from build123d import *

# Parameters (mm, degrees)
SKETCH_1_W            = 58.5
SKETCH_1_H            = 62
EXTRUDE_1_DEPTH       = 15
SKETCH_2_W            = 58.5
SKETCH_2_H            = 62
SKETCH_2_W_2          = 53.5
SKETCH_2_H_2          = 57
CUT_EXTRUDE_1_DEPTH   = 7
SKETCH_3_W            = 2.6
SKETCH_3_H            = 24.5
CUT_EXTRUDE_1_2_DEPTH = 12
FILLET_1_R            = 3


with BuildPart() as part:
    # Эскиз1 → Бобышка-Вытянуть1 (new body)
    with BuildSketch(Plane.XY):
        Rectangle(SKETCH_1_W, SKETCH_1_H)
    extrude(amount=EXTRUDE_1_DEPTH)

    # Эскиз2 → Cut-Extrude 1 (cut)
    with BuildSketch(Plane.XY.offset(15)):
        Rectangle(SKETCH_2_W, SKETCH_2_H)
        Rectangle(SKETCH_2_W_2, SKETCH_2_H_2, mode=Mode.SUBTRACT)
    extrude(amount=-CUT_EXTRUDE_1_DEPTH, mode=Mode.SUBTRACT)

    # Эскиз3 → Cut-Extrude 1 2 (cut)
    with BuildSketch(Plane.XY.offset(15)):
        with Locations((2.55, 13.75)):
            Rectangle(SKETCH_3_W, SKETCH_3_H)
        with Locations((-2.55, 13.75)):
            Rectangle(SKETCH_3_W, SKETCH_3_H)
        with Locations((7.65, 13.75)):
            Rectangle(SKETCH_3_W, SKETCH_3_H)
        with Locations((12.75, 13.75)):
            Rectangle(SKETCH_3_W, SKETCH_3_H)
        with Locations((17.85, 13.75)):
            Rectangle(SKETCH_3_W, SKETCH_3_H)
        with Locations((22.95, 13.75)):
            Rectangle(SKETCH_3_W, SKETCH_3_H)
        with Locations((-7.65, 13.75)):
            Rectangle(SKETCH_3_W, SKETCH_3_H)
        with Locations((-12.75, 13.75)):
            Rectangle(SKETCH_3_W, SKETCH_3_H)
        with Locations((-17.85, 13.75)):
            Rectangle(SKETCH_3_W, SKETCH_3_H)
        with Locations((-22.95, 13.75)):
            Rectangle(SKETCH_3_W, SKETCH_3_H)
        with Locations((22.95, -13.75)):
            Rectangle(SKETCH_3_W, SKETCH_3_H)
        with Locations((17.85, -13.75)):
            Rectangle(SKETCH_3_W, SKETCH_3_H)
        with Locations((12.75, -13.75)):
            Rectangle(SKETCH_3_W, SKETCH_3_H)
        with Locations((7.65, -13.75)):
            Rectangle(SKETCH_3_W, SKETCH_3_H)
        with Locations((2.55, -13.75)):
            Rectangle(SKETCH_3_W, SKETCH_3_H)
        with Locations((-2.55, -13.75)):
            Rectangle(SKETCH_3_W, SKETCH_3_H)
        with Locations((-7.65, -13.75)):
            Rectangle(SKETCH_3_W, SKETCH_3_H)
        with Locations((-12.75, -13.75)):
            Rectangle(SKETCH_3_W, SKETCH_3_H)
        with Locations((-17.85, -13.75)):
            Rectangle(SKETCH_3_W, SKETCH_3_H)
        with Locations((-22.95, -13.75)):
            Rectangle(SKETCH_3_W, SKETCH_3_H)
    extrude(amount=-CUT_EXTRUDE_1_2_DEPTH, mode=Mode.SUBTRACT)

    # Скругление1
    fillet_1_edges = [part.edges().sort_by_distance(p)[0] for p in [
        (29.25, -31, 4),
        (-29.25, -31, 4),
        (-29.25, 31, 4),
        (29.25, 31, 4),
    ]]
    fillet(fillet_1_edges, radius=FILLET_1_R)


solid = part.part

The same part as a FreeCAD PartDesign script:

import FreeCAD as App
import Part
import Sketcher

V = App.Vector


def edges_at(feature, points):
    """Names of the edges that pass closest to the given points."""
    edges = feature.Shape.Edges
    near = lambda p: min(range(len(edges)), key=lambda i: edges[i].distToShape(Part.Vertex(*p))[0])
    return sorted({f"Edge{near(p) + 1}" for p in points})

doc = App.newDocument("Part")
params = doc.addObject("Spreadsheet::Sheet", "Params")
for row, (alias, value) in enumerate([
    ("sketch1_height", "62 mm"),
    ("sketch1_width", "58.5 mm"),
    ("pad1_length", "15 mm"),
    ("sketch2_height", "62 mm"),
    ("sketch2_height2", "57 mm"),
    ("sketch2_width", "58.5 mm"),
    ("sketch2_width2", "53.5 mm"),
    ("pocket1_length", "7 mm"),
    ("sketch3_width", "2.6 mm"),
    ("sketch3_height", "24.5 mm"),
    ("pocket2_length", "12 mm"),
    ("fillet_radius", "3 mm"),
], start=1):
    params.set(f"A{row}", alias)
    params.set(f"B{row}", "=" + value)
    params.setAlias(f"B{row}", alias)

body = doc.addObject("PartDesign::Body", "Body")

# Sketch on XY plane
sketch1 = doc.addObject("Sketcher::SketchObject", "Sketch")
body.addObject(sketch1)
sketch1.AttachmentSupport = (doc.XY_Plane, [""])
sketch1.MapMode = "FlatFace"
sketch1.addGeometry(Part.LineSegment(V(-29, 31, 0), V(-29, -31, 0)), False)
sketch1.addGeometry(Part.LineSegment(V(-29, -31, 0), V(29, -31, 0)), False)
sketch1.addGeometry(Part.LineSegment(V(29, -31, 0), V(29, 31, 0)), False)
sketch1.addGeometry(Part.LineSegment(V(29, 31, 0), V(-29, 31, 0)), False)
sketch1.addConstraint(Sketcher.Constraint("Coincident", 0, 2, 1, 1))
sketch1.addConstraint(Sketcher.Constraint("Coincident", 1, 2, 2, 1))
sketch1.addConstraint(Sketcher.Constraint("Coincident", 2, 2, 3, 1))
sketch1.addConstraint(Sketcher.Constraint("Coincident", 3, 2, 0, 1))
sketch1.addConstraint(Sketcher.Constraint("Vertical", 0))
sketch1.addConstraint(Sketcher.Constraint("Horizontal", 1))
sketch1.addConstraint(Sketcher.Constraint("Vertical", 2))
sketch1.addConstraint(Sketcher.Constraint("Horizontal", 3))
sketch1.addConstraint(Sketcher.Constraint("Symmetric", 0, 2, 2, 2, -1, 1))
sketch1.addConstraint(Sketcher.Constraint("DistanceY", 0, 2, 0, 1, 62.0))
sketch1.addConstraint(Sketcher.Constraint("DistanceX", 1, 1, 1, 2, 58.5))
sketch1.setExpression("Constraints[9]", "Params.sketch1_height")
sketch1.setExpression("Constraints[10]", "Params.sketch1_width")
pad1 = doc.addObject("PartDesign::Pad", "Pad")
body.addObject(pad1)
pad1.Profile = sketch1
pad1.setExpression("Length", "Params.pad1_length")

# Sketch on XY plane
sketch2 = doc.addObject("Sketcher::SketchObject", "Sketch001")
body.addObject(sketch2)
sketch2.AttachmentSupport = (doc.XY_Plane, [""])
sketch2.MapMode = "FlatFace"
sketch2.AttachmentOffset = App.Placement(V(0, 0, 15), App.Rotation())
sketch2.addGeometry(Part.LineSegment(V(-29, 31, 0), V(-29, -31, 0)), False)
sketch2.addGeometry(Part.LineSegment(V(-29, -31, 0), V(29, -31, 0)), False)
sketch2.addGeometry(Part.LineSegment(V(29, -31, 0), V(29, 31, 0)), False)
sketch2.addGeometry(Part.LineSegment(V(29, 31, 0), V(-29, 31, 0)), False)
sketch2.addGeometry(Part.LineSegment(V(27, -28, 0), V(-27, -28, 0)), False)
sketch2.addGeometry(Part.LineSegment(V(-27, -28, 0), V(-27, 28, 0)), False)
sketch2.addGeometry(Part.LineSegment(V(-27, 28, 0), V(27, 28, 0)), False)
sketch2.addGeometry(Part.LineSegment(V(27, 28, 0), V(27, -28, 0)), False)
sketch2.addConstraint(Sketcher.Constraint("Coincident", 0, 2, 1, 1))
sketch2.addConstraint(Sketcher.Constraint("Coincident", 1, 2, 2, 1))
sketch2.addConstraint(Sketcher.Constraint("Coincident", 2, 2, 3, 1))
sketch2.addConstraint(Sketcher.Constraint("Coincident", 3, 2, 0, 1))
sketch2.addConstraint(Sketcher.Constraint("Coincident", 4, 2, 5, 1))
sketch2.addConstraint(Sketcher.Constraint("Coincident", 5, 2, 6, 1))
sketch2.addConstraint(Sketcher.Constraint("Coincident", 6, 2, 7, 1))
sketch2.addConstraint(Sketcher.Constraint("Coincident", 7, 2, 4, 1))
sketch2.addConstraint(Sketcher.Constraint("Vertical", 0))
sketch2.addConstraint(Sketcher.Constraint("Horizontal", 1))
sketch2.addConstraint(Sketcher.Constraint("Vertical", 2))
sketch2.addConstraint(Sketcher.Constraint("Horizontal", 3))
sketch2.addConstraint(Sketcher.Constraint("Horizontal", 4))
sketch2.addConstraint(Sketcher.Constraint("Vertical", 5))
sketch2.addConstraint(Sketcher.Constraint("Horizontal", 6))
sketch2.addConstraint(Sketcher.Constraint("Vertical", 7))
sketch2.addConstraint(Sketcher.Constraint("Symmetric", 0, 2, 2, 2, -1, 1))
sketch2.addConstraint(Sketcher.Constraint("Symmetric", 4, 2, 6, 2, -1, 1))
sketch2.addConstraint(Sketcher.Constraint("DistanceY", 0, 2, 0, 1, 62.0))
sketch2.addConstraint(Sketcher.Constraint("DistanceY", 5, 1, 5, 2, 57.0))
sketch2.addConstraint(Sketcher.Constraint("DistanceX", 1, 1, 1, 2, 58.5))
sketch2.addConstraint(Sketcher.Constraint("DistanceX", 4, 2, 4, 1, 53.5))
sketch2.setExpression("Constraints[18]", "Params.sketch2_height")
sketch2.setExpression("Constraints[19]", "Params.sketch2_height2")
sketch2.setExpression("Constraints[20]", "Params.sketch2_width")
sketch2.setExpression("Constraints[21]", "Params.sketch2_width2")
pocket1 = doc.addObject("PartDesign::Pocket", "Pocket")
body.addObject(pocket1)
pocket1.Profile = sketch2
pocket1.setExpression("Length", "Params.pocket1_length")

# Sketch on XY plane
sketch3 = doc.addObject("Sketcher::SketchObject", "Sketch002")
body.addObject(sketch3)
sketch3.AttachmentSupport = (doc.XY_Plane, [""])
sketch3.MapMode = "FlatFace"
sketch3.AttachmentOffset = App.Placement(V(0, 0, 15), App.Rotation())
sketch3.addGeometry(Part.LineSegment(V(1.2, 26, 0), V(1.2, 1.5, 0)), False)
sketch3.addGeometry(Part.LineSegment(V(1.2, 1.5, 0), V(3.9, 1.5, 0)), False)
sketch3.addGeometry(Part.LineSegment(V(3.9, 1.5, 0), V(3.9, 26, 0)), False)
sketch3.addGeometry(Part.LineSegment(V(3.9, 26, 0), V(1.2, 26, 0)), False)
sketch3.addGeometry(Part.LineSegment(V(-3.9, 26, 0), V(-3.9, 1.5, 0)), False)
sketch3.addGeometry(Part.LineSegment(V(-3.9, 1.5, 0), V(-1.2, 1.5, 0)), False)
sketch3.addGeometry(Part.LineSegment(V(-1.2, 1.5, 0), V(-1.2, 26, 0)), False)
sketch3.addGeometry(Part.LineSegment(V(-1.2, 26, 0), V(-3.9, 26, 0)), False)
sketch3.addGeometry(Part.LineSegment(V(6.3, 26, 0), V(6.3, 1.5, 0)), False)
sketch3.addGeometry(Part.LineSegment(V(6.3, 1.5, 0), V(8.9, 1.5, 0)), False)
sketch3.addGeometry(Part.LineSegment(V(8.9, 1.5, 0), V(8.9, 26, 0)), False)
sketch3.addGeometry(Part.LineSegment(V(8.9, 26, 0), V(6.3, 26, 0)), False)
sketch3.addGeometry(Part.LineSegment(V(11.4, 26, 0), V(11.4, 1.5, 0)), False)
sketch3.addGeometry(Part.LineSegment(V(11.4, 1.5, 0), V(14.1, 1.5, 0)), False)
sketch3.addGeometry(Part.LineSegment(V(14.1, 1.5, 0), V(14.1, 26, 0)), False)
sketch3.addGeometry(Part.LineSegment(V(14.1, 26, 0), V(11.4, 26, 0)), False)
sketch3.addGeometry(Part.LineSegment(V(16.6, 26, 0), V(16.6, 1.5, 0)), False)
sketch3.addGeometry(Part.LineSegment(V(16.6, 1.5, 0), V(19.1, 1.5, 0)), False)
sketch3.addGeometry(Part.LineSegment(V(19.1, 1.5, 0), V(19.1, 26, 0)), False)
sketch3.addGeometry(Part.LineSegment(V(19.1, 26, 0), V(16.6, 26, 0)), False)
sketch3.addGeometry(Part.LineSegment(V(21.6, 26, 0), V(21.6, 1.5, 0)), False)
sketch3.addGeometry(Part.LineSegment(V(21.6, 1.5, 0), V(24.2, 1.5, 0)), False)
sketch3.addGeometry(Part.LineSegment(V(24.2, 1.5, 0), V(24.2, 26, 0)), False)
sketch3.addGeometry(Part.LineSegment(V(24.2, 26, 0), V(21.6, 26, 0)), False)
sketch3.addGeometry(Part.LineSegment(V(-8.9, 26, 0), V(-8.9, 1.5, 0)), False)
sketch3.addGeometry(Part.LineSegment(V(-8.9, 1.5, 0), V(-6.3, 1.5, 0)), False)
sketch3.addGeometry(Part.LineSegment(V(-6.3, 1.5, 0), V(-6.3, 26, 0)), False)
sketch3.addGeometry(Part.LineSegment(V(-6.3, 26, 0), V(-8.9, 26, 0)), False)
sketch3.addGeometry(Part.LineSegment(V(-14.1, 26, 0), V(-14.1, 1.5, 0)), False)
sketch3.addGeometry(Part.LineSegment(V(-14.1, 1.5, 0), V(-11.4, 1.5, 0)), False)
sketch3.addGeometry(Part.LineSegment(V(-11.4, 1.5, 0), V(-11.4, 26, 0)), False)
sketch3.addGeometry(Part.LineSegment(V(-11.4, 26, 0), V(-14.1, 26, 0)), False)
sketch3.addGeometry(Part.LineSegment(V(-19.1, 26, 0), V(-19.1, 1.5, 0)), False)
sketch3.addGeometry(Part.LineSegment(V(-19.1, 1.5, 0), V(-16.6, 1.5, 0)), False)
sketch3.addGeometry(Part.LineSegment(V(-16.6, 1.5, 0), V(-16.6, 26, 0)), False)
sketch3.addGeometry(Part.LineSegment(V(-16.6, 26, 0), V(-19.1, 26, 0)), False)
sketch3.addGeometry(Part.LineSegment(V(-24.2, 26, 0), V(-24.2, 1.5, 0)), False)
sketch3.addGeometry(Part.LineSegment(V(-24.2, 1.5, 0), V(-21.6, 1.5, 0)), False)
sketch3.addGeometry(Part.LineSegment(V(-21.6, 1.5, 0), V(-21.6, 26, 0)), False)
sketch3.addGeometry(Part.LineSegment(V(-21.6, 26, 0), V(-24.2, 26, 0)), False)
sketch3.addGeometry(Part.LineSegment(V(21.6, -1.5, 0), V(21.6, -26, 0)), False)
sketch3.addGeometry(Part.LineSegment(V(21.6, -26, 0), V(24.2, -26, 0)), False)
sketch3.addGeometry(Part.LineSegment(V(24.2, -26, 0), V(24.2, -1.5, 0)), False)
sketch3.addGeometry(Part.LineSegment(V(24.2, -1.5, 0), V(21.6, -1.5, 0)), False)
sketch3.addGeometry(Part.LineSegment(V(16.6, -1.5, 0), V(16.6, -26, 0)), False)
sketch3.addGeometry(Part.LineSegment(V(16.6, -26, 0), V(19.1, -26, 0)), False)
sketch3.addGeometry(Part.LineSegment(V(19.1, -26, 0), V(19.1, -1.5, 0)), False)
sketch3.addGeometry(Part.LineSegment(V(19.1, -1.5, 0), V(16.6, -1.5, 0)), False)
sketch3.addGeometry(Part.LineSegment(V(11.4, -1.5, 0), V(11.4, -26, 0)), False)
sketch3.addGeometry(Part.LineSegment(V(11.4, -26, 0), V(14.1, -26, 0)), False)
sketch3.addGeometry(Part.LineSegment(V(14.1, -26, 0), V(14.1, -1.5, 0)), False)
sketch3.addGeometry(Part.LineSegment(V(14.1, -1.5, 0), V(11.4, -1.5, 0)), False)
sketch3.addGeometry(Part.LineSegment(V(6.3, -1.5, 0), V(6.3, -26, 0)), False)
sketch3.addGeometry(Part.LineSegment(V(6.3, -26, 0), V(8.9, -26, 0)), False)
sketch3.addGeometry(Part.LineSegment(V(8.9, -26, 0), V(8.9, -1.5, 0)), False)
sketch3.addGeometry(Part.LineSegment(V(8.9, -1.5, 0), V(6.3, -1.5, 0)), False)
sketch3.addGeometry(Part.LineSegment(V(1.2, -1.5, 0), V(1.2, -26, 0)), False)
sketch3.addGeometry(Part.LineSegment(V(1.2, -26, 0), V(3.9, -26, 0)), False)
sketch3.addGeometry(Part.LineSegment(V(3.9, -26, 0), V(3.9, -1.5, 0)), False)
sketch3.addGeometry(Part.LineSegment(V(3.9, -1.5, 0), V(1.2, -1.5, 0)), False)
sketch3.addGeometry(Part.LineSegment(V(-3.9, -1.5, 0), V(-3.9, -26, 0)), False)
sketch3.addGeometry(Part.LineSegment(V(-3.9, -26, 0), V(-1.2, -26, 0)), False)
sketch3.addGeometry(Part.LineSegment(V(-1.2, -26, 0), V(-1.2, -1.5, 0)), False)
sketch3.addGeometry(Part.LineSegment(V(-1.2, -1.5, 0), V(-3.9, -1.5, 0)), False)
sketch3.addGeometry(Part.LineSegment(V(-8.9, -1.5, 0), V(-8.9, -26, 0)), False)
sketch3.addGeometry(Part.LineSegment(V(-8.9, -26, 0), V(-6.3, -26, 0)), False)
sketch3.addGeometry(Part.LineSegment(V(-6.3, -26, 0), V(-6.3, -1.5, 0)), False)
sketch3.addGeometry(Part.LineSegment(V(-6.3, -1.5, 0), V(-8.9, -1.5, 0)), False)
sketch3.addGeometry(Part.LineSegment(V(-14.1, -1.5, 0), V(-14.1, -26, 0)), False)
sketch3.addGeometry(Part.LineSegment(V(-14.1, -26, 0), V(-11.4, -26, 0)), False)
sketch3.addGeometry(Part.LineSegment(V(-11.4, -26, 0), V(-11.4, -1.5, 0)), False)
sketch3.addGeometry(Part.LineSegment(V(-11.4, -1.5, 0), V(-14.1, -1.5, 0)), False)
sketch3.addGeometry(Part.LineSegment(V(-19.1, -1.5, 0), V(-19.1, -26, 0)), False)
sketch3.addGeometry(Part.LineSegment(V(-19.1, -26, 0), V(-16.6, -26, 0)), False)
sketch3.addGeometry(Part.LineSegment(V(-16.6, -26, 0), V(-16.6, -1.5, 0)), False)
sketch3.addGeometry(Part.LineSegment(V(-16.6, -1.5, 0), V(-19.1, -1.5, 0)), False)
sketch3.addGeometry(Part.LineSegment(V(-24.2, -1.5, 0), V(-24.2, -26, 0)), False)
sketch3.addGeometry(Part.LineSegment(V(-24.2, -26, 0), V(-21.6, -26, 0)), False)
sketch3.addGeometry(Part.LineSegment(V(-21.6, -26, 0), V(-21.6, -1.5, 0)), False)
sketch3.addGeometry(Part.LineSegment(V(-21.6, -1.5, 0), V(-24.2, -1.5, 0)), False)
sketch3.addConstraint(Sketcher.Constraint("Coincident", 0, 2, 1, 1))
sketch3.addConstraint(Sketcher.Constraint("Coincident", 1, 2, 2, 1))
sketch3.addConstraint(Sketcher.Constraint("Coincident", 2, 2, 3, 1))
sketch3.addConstraint(Sketcher.Constraint("Coincident", 3, 2, 0, 1))
sketch3.addConstraint(Sketcher.Constraint("Coincident", 4, 2, 5, 1))
sketch3.addConstraint(Sketcher.Constraint("Coincident", 5, 2, 6, 1))
sketch3.addConstraint(Sketcher.Constraint("Coincident", 6, 2, 7, 1))
sketch3.addConstraint(Sketcher.Constraint("Coincident", 7, 2, 4, 1))
sketch3.addConstraint(Sketcher.Constraint("Coincident", 8, 2, 9, 1))
sketch3.addConstraint(Sketcher.Constraint("Coincident", 9, 2, 10, 1))
sketch3.addConstraint(Sketcher.Constraint("Coincident", 10, 2, 11, 1))
sketch3.addConstraint(Sketcher.Constraint("Coincident", 11, 2, 8, 1))
sketch3.addConstraint(Sketcher.Constraint("Coincident", 12, 2, 13, 1))
sketch3.addConstraint(Sketcher.Constraint("Coincident", 13, 2, 14, 1))
sketch3.addConstraint(Sketcher.Constraint("Coincident", 14, 2, 15, 1))
sketch3.addConstraint(Sketcher.Constraint("Coincident", 15, 2, 12, 1))
sketch3.addConstraint(Sketcher.Constraint("Coincident", 16, 2, 17, 1))
sketch3.addConstraint(Sketcher.Constraint("Coincident", 17, 2, 18, 1))
sketch3.addConstraint(Sketcher.Constraint("Coincident", 18, 2, 19, 1))
sketch3.addConstraint(Sketcher.Constraint("Coincident", 19, 2, 16, 1))
sketch3.addConstraint(Sketcher.Constraint("Coincident", 20, 2, 21, 1))
sketch3.addConstraint(Sketcher.Constraint("Coincident", 21, 2, 22, 1))
sketch3.addConstraint(Sketcher.Constraint("Coincident", 22, 2, 23, 1))
sketch3.addConstraint(Sketcher.Constraint("Coincident", 23, 2, 20, 1))
sketch3.addConstraint(Sketcher.Constraint("Coincident", 24, 2, 25, 1))
sketch3.addConstraint(Sketcher.Constraint("Coincident", 25, 2, 26, 1))
sketch3.addConstraint(Sketcher.Constraint("Coincident", 26, 2, 27, 1))
sketch3.addConstraint(Sketcher.Constraint("Coincident", 27, 2, 24, 1))
sketch3.addConstraint(Sketcher.Constraint("Coincident", 28, 2, 29, 1))
sketch3.addConstraint(Sketcher.Constraint("Coincident", 29, 2, 30, 1))
sketch3.addConstraint(Sketcher.Constraint("Coincident", 30, 2, 31, 1))
sketch3.addConstraint(Sketcher.Constraint("Coincident", 31, 2, 28, 1))
sketch3.addConstraint(Sketcher.Constraint("Coincident", 32, 2, 33, 1))
sketch3.addConstraint(Sketcher.Constraint("Coincident", 33, 2, 34, 1))
sketch3.addConstraint(Sketcher.Constraint("Coincident", 34, 2, 35, 1))
sketch3.addConstraint(Sketcher.Constraint("Coincident", 35, 2, 32, 1))
sketch3.addConstraint(Sketcher.Constraint("Coincident", 36, 2, 37, 1))
sketch3.addConstraint(Sketcher.Constraint("Coincident", 37, 2, 38, 1))
sketch3.addConstraint(Sketcher.Constraint("Coincident", 38, 2, 39, 1))
sketch3.addConstraint(Sketcher.Constraint("Coincident", 39, 2, 36, 1))
sketch3.addConstraint(Sketcher.Constraint("Coincident", 40, 2, 41, 1))
sketch3.addConstraint(Sketcher.Constraint("Coincident", 41, 2, 42, 1))
sketch3.addConstraint(Sketcher.Constraint("Coincident", 42, 2, 43, 1))
sketch3.addConstraint(Sketcher.Constraint("Coincident", 43, 2, 40, 1))
sketch3.addConstraint(Sketcher.Constraint("Coincident", 44, 2, 45, 1))
sketch3.addConstraint(Sketcher.Constraint("Coincident", 45, 2, 46, 1))
sketch3.addConstraint(Sketcher.Constraint("Coincident", 46, 2, 47, 1))
sketch3.addConstraint(Sketcher.Constraint("Coincident", 47, 2, 44, 1))
sketch3.addConstraint(Sketcher.Constraint("Coincident", 48, 2, 49, 1))
sketch3.addConstraint(Sketcher.Constraint("Coincident", 49, 2, 50, 1))
sketch3.addConstraint(Sketcher.Constraint("Coincident", 50, 2, 51, 1))
sketch3.addConstraint(Sketcher.Constraint("Coincident", 51, 2, 48, 1))
sketch3.addConstraint(Sketcher.Constraint("Coincident", 52, 2, 53, 1))
sketch3.addConstraint(Sketcher.Constraint("Coincident", 53, 2, 54, 1))
sketch3.addConstraint(Sketcher.Constraint("Coincident", 54, 2, 55, 1))
sketch3.addConstraint(Sketcher.Constraint("Coincident", 55, 2, 52, 1))
sketch3.addConstraint(Sketcher.Constraint("Coincident", 56, 2, 57, 1))
sketch3.addConstraint(Sketcher.Constraint("Coincident", 57, 2, 58, 1))
sketch3.addConstraint(Sketcher.Constraint("Coincident", 58, 2, 59, 1))
sketch3.addConstraint(Sketcher.Constraint("Coincident", 59, 2, 56, 1))
sketch3.addConstraint(Sketcher.Constraint("Coincident", 60, 2, 61, 1))
sketch3.addConstraint(Sketcher.Constraint("Coincident", 61, 2, 62, 1))
sketch3.addConstraint(Sketcher.Constraint("Coincident", 62, 2, 63, 1))
sketch3.addConstraint(Sketcher.Constraint("Coincident", 63, 2, 60, 1))
sketch3.addConstraint(Sketcher.Constraint("Coincident", 64, 2, 65, 1))
sketch3.addConstraint(Sketcher.Constraint("Coincident", 65, 2, 66, 1))
sketch3.addConstraint(Sketcher.Constraint("Coincident", 66, 2, 67, 1))
sketch3.addConstraint(Sketcher.Constraint("Coincident", 67, 2, 64, 1))
sketch3.addConstraint(Sketcher.Constraint("Coincident", 68, 2, 69, 1))
sketch3.addConstraint(Sketcher.Constraint("Coincident", 69, 2, 70, 1))
sketch3.addConstraint(Sketcher.Constraint("Coincident", 70, 2, 71, 1))
sketch3.addConstraint(Sketcher.Constraint("Coincident", 71, 2, 68, 1))
sketch3.addConstraint(Sketcher.Constraint("Coincident", 72, 2, 73, 1))
sketch3.addConstraint(Sketcher.Constraint("Coincident", 73, 2, 74, 1))
sketch3.addConstraint(Sketcher.Constraint("Coincident", 74, 2, 75, 1))
sketch3.addConstraint(Sketcher.Constraint("Coincident", 75, 2, 72, 1))
sketch3.addConstraint(Sketcher.Constraint("Coincident", 76, 2, 77, 1))
sketch3.addConstraint(Sketcher.Constraint("Coincident", 77, 2, 78, 1))
sketch3.addConstraint(Sketcher.Constraint("Coincident", 78, 2, 79, 1))
sketch3.addConstraint(Sketcher.Constraint("Coincident", 79, 2, 76, 1))
sketch3.addConstraint(Sketcher.Constraint("Vertical", 0))
sketch3.addConstraint(Sketcher.Constraint("Horizontal", 1))
sketch3.addConstraint(Sketcher.Constraint("Vertical", 2))
sketch3.addConstraint(Sketcher.Constraint("Horizontal", 3))
sketch3.addConstraint(Sketcher.Constraint("Vertical", 4))
sketch3.addConstraint(Sketcher.Constraint("Horizontal", 5))
sketch3.addConstraint(Sketcher.Constraint("Vertical", 6))
sketch3.addConstraint(Sketcher.Constraint("Horizontal", 7))
sketch3.addConstraint(Sketcher.Constraint("Vertical", 8))
sketch3.addConstraint(Sketcher.Constraint("Horizontal", 9))
sketch3.addConstraint(Sketcher.Constraint("Vertical", 10))
sketch3.addConstraint(Sketcher.Constraint("Horizontal", 11))
sketch3.addConstraint(Sketcher.Constraint("Vertical", 12))
sketch3.addConstraint(Sketcher.Constraint("Horizontal", 13))
sketch3.addConstraint(Sketcher.Constraint("Vertical", 14))
sketch3.addConstraint(Sketcher.Constraint("Horizontal", 15))
sketch3.addConstraint(Sketcher.Constraint("Vertical", 16))
sketch3.addConstraint(Sketcher.Constraint("Horizontal", 17))
sketch3.addConstraint(Sketcher.Constraint("Vertical", 18))
sketch3.addConstraint(Sketcher.Constraint("Horizontal", 19))
sketch3.addConstraint(Sketcher.Constraint("Vertical", 20))
sketch3.addConstraint(Sketcher.Constraint("Horizontal", 21))
sketch3.addConstraint(Sketcher.Constraint("Vertical", 22))
sketch3.addConstraint(Sketcher.Constraint("Horizontal", 23))
sketch3.addConstraint(Sketcher.Constraint("Vertical", 24))
sketch3.addConstraint(Sketcher.Constraint("Horizontal", 25))
sketch3.addConstraint(Sketcher.Constraint("Vertical", 26))
sketch3.addConstraint(Sketcher.Constraint("Horizontal", 27))
sketch3.addConstraint(Sketcher.Constraint("Vertical", 28))
sketch3.addConstraint(Sketcher.Constraint("Horizontal", 29))
sketch3.addConstraint(Sketcher.Constraint("Vertical", 30))
sketch3.addConstraint(Sketcher.Constraint("Horizontal", 31))
sketch3.addConstraint(Sketcher.Constraint("Vertical", 32))
sketch3.addConstraint(Sketcher.Constraint("Horizontal", 33))
sketch3.addConstraint(Sketcher.Constraint("Vertical", 34))
sketch3.addConstraint(Sketcher.Constraint("Horizontal", 35))
sketch3.addConstraint(Sketcher.Constraint("Vertical", 36))
sketch3.addConstraint(Sketcher.Constraint("Horizontal", 37))
sketch3.addConstraint(Sketcher.Constraint("Vertical", 38))
sketch3.addConstraint(Sketcher.Constraint("Horizontal", 39))
sketch3.addConstraint(Sketcher.Constraint("Vertical", 40))
sketch3.addConstraint(Sketcher.Constraint("Horizontal", 41))
sketch3.addConstraint(Sketcher.Constraint("Vertical", 42))
sketch3.addConstraint(Sketcher.Constraint("Horizontal", 43))
sketch3.addConstraint(Sketcher.Constraint("Vertical", 44))
sketch3.addConstraint(Sketcher.Constraint("Horizontal", 45))
sketch3.addConstraint(Sketcher.Constraint("Vertical", 46))
sketch3.addConstraint(Sketcher.Constraint("Horizontal", 47))
sketch3.addConstraint(Sketcher.Constraint("Vertical", 48))
sketch3.addConstraint(Sketcher.Constraint("Horizontal", 49))
sketch3.addConstraint(Sketcher.Constraint("Vertical", 50))
sketch3.addConstraint(Sketcher.Constraint("Horizontal", 51))
sketch3.addConstraint(Sketcher.Constraint("Vertical", 52))
sketch3.addConstraint(Sketcher.Constraint("Horizontal", 53))
sketch3.addConstraint(Sketcher.Constraint("Vertical", 54))
sketch3.addConstraint(Sketcher.Constraint("Horizontal", 55))
sketch3.addConstraint(Sketcher.Constraint("Vertical", 56))
sketch3.addConstraint(Sketcher.Constraint("Horizontal", 57))
sketch3.addConstraint(Sketcher.Constraint("Vertical", 58))
sketch3.addConstraint(Sketcher.Constraint("Horizontal", 59))
sketch3.addConstraint(Sketcher.Constraint("Vertical", 60))
sketch3.addConstraint(Sketcher.Constraint("Horizontal", 61))
sketch3.addConstraint(Sketcher.Constraint("Vertical", 62))
sketch3.addConstraint(Sketcher.Constraint("Horizontal", 63))
sketch3.addConstraint(Sketcher.Constraint("Vertical", 64))
sketch3.addConstraint(Sketcher.Constraint("Horizontal", 65))
sketch3.addConstraint(Sketcher.Constraint("Vertical", 66))
sketch3.addConstraint(Sketcher.Constraint("Horizontal", 67))
sketch3.addConstraint(Sketcher.Constraint("Vertical", 68))
sketch3.addConstraint(Sketcher.Constraint("Horizontal", 69))
sketch3.addConstraint(Sketcher.Constraint("Vertical", 70))
sketch3.addConstraint(Sketcher.Constraint("Horizontal", 71))
sketch3.addConstraint(Sketcher.Constraint("Vertical", 72))
sketch3.addConstraint(Sketcher.Constraint("Horizontal", 73))
sketch3.addConstraint(Sketcher.Constraint("Vertical", 74))
sketch3.addConstraint(Sketcher.Constraint("Horizontal", 75))
sketch3.addConstraint(Sketcher.Constraint("Vertical", 76))
sketch3.addConstraint(Sketcher.Constraint("Horizontal", 77))
sketch3.addConstraint(Sketcher.Constraint("Vertical", 78))
sketch3.addConstraint(Sketcher.Constraint("Horizontal", 79))
sketch3.addConstraint(Sketcher.Constraint("Symmetric", 38, 2, 40, 2, -1, 1))
sketch3.addConstraint(Sketcher.Constraint("Symmetric", 36, 2, 42, 2, -1, 1))
sketch3.addConstraint(Sketcher.Constraint("Symmetric", 34, 2, 44, 2, -1, 1))
sketch3.addConstraint(Sketcher.Constraint("Symmetric", 32, 2, 46, 2, -1, 1))
sketch3.addConstraint(Sketcher.Constraint("Symmetric", 30, 2, 48, 2, -1, 1))
sketch3.addConstraint(Sketcher.Constraint("Symmetric", 28, 2, 50, 2, -1, 1))
sketch3.addConstraint(Sketcher.Constraint("Symmetric", 26, 2, 52, 2, -1, 1))
sketch3.addConstraint(Sketcher.Constraint("Symmetric", 24, 2, 54, 2, -1, 1))
sketch3.addConstraint(Sketcher.Constraint("Symmetric", 6, 2, 56, 2, -1, 1))
sketch3.addConstraint(Sketcher.Constraint("Symmetric", 4, 2, 58, 2, -1, 1))
sketch3.addConstraint(Sketcher.Constraint("Symmetric", 2, 2, 60, 2, -1, 1))
sketch3.addConstraint(Sketcher.Constraint("Symmetric", 0, 2, 62, 2, -1, 1))
sketch3.addConstraint(Sketcher.Constraint("Symmetric", 10, 2, 64, 2, -1, 1))
sketch3.addConstraint(Sketcher.Constraint("Symmetric", 8, 2, 66, 2, -1, 1))
sketch3.addConstraint(Sketcher.Constraint("Symmetric", 14, 2, 68, 2, -1, 1))
sketch3.addConstraint(Sketcher.Constraint("Symmetric", 12, 2, 70, 2, -1, 1))
sketch3.addConstraint(Sketcher.Constraint("Symmetric", 18, 2, 72, 2, -1, 1))
sketch3.addConstraint(Sketcher.Constraint("Symmetric", 16, 2, 74, 2, -1, 1))
sketch3.addConstraint(Sketcher.Constraint("Symmetric", 22, 2, 76, 2, -1, 1))
sketch3.addConstraint(Sketcher.Constraint("Symmetric", 20, 2, 78, 2, -1, 1))
sketch3.addConstraint(Sketcher.Constraint("Symmetric", 1, 2, 4, 2, -2))
sketch3.addConstraint(Sketcher.Constraint("Symmetric", 3, 2, 6, 2, -2))
sketch3.addConstraint(Sketcher.Constraint("Symmetric", 9, 2, 24, 2, -2))
sketch3.addConstraint(Sketcher.Constraint("Symmetric", 11, 2, 26, 2, -2))
sketch3.addConstraint(Sketcher.Constraint("Symmetric", 13, 2, 28, 2, -2))
sketch3.addConstraint(Sketcher.Constraint("Symmetric", 15, 2, 30, 2, -2))
sketch3.addConstraint(Sketcher.Constraint("Symmetric", 17, 2, 32, 2, -2))
sketch3.addConstraint(Sketcher.Constraint("Symmetric", 19, 2, 34, 2, -2))
sketch3.addConstraint(Sketcher.Constraint("Symmetric", 21, 2, 36, 2, -2))
sketch3.addConstraint(Sketcher.Constraint("Symmetric", 23, 2, 38, 2, -2))
sketch3.addConstraint(Sketcher.Constraint("Horizontal", 5, 2, 8, 2))
sketch3.addConstraint(Sketcher.Constraint("Horizontal", 7, 2, 10, 2))
sketch3.addConstraint(Sketcher.Constraint("Horizontal", 9, 2, 12, 2))
sketch3.addConstraint(Sketcher.Constraint("Horizontal", 11, 2, 14, 2))
sketch3.addConstraint(Sketcher.Constraint("Horizontal", 13, 2, 16, 2))
sketch3.addConstraint(Sketcher.Constraint("Horizontal", 15, 2, 18, 2))
sketch3.addConstraint(Sketcher.Constraint("Horizontal", 17, 2, 20, 2))
sketch3.addConstraint(Sketcher.Constraint("Horizontal", 19, 2, 22, 2))
sketch3.addConstraint(Sketcher.Constraint("Equal", 7, 9))
sketch3.addConstraint(Sketcher.Constraint("Equal", 11, 13))
sketch3.addConstraint(Sketcher.Constraint("Equal", 15, 17))
sketch3.addConstraint(Sketcher.Constraint("Equal", 19, 21))
sketch3.addConstraint(Sketcher.Constraint("DistanceX", 1, 1, 1, 2, 2.6))
sketch3.addConstraint(Sketcher.Constraint("DistanceY", 0, 2, 0, 1, 24.5))
sketch3.addConstraint(Sketcher.Constraint("DistanceY", -1, 1, 2, 2, 26.0))
sketch3.addConstraint(Sketcher.Constraint("DistanceX", -1, 1, 0, 2, 1.25))
sketch3.addConstraint(Sketcher.Constraint("DistanceX", -1, 1, 8, 2, 6.35))
sketch3.addConstraint(Sketcher.Constraint("DistanceX", -1, 1, 12, 2, 11.45))
sketch3.addConstraint(Sketcher.Constraint("DistanceX", -1, 1, 16, 2, 16.55))
sketch3.addConstraint(Sketcher.Constraint("DistanceX", -1, 1, 20, 2, 21.65))
sketch3.setExpression("Constraints[202]", "Params.sketch3_width")
sketch3.setExpression("Constraints[203]", "Params.sketch3_height")
pocket2 = doc.addObject("PartDesign::Pocket", "Pocket001")
body.addObject(pocket2)
pocket2.Profile = sketch3
pocket2.setExpression("Length", "Params.pocket2_length")
doc.recompute()

fillet = doc.addObject("PartDesign::Fillet", "Fillet")
body.addObject(fillet)
fillet.Base = (pocket2, edges_at(pocket2, [
    (29.25, -31, 4),
    (-29.25, -31, 4),
    (-29.25, 31, 4),
    (29.25, 31, 4),
]))
fillet.setExpression("Radius", "Params.fillet_radius")

doc.recompute()
